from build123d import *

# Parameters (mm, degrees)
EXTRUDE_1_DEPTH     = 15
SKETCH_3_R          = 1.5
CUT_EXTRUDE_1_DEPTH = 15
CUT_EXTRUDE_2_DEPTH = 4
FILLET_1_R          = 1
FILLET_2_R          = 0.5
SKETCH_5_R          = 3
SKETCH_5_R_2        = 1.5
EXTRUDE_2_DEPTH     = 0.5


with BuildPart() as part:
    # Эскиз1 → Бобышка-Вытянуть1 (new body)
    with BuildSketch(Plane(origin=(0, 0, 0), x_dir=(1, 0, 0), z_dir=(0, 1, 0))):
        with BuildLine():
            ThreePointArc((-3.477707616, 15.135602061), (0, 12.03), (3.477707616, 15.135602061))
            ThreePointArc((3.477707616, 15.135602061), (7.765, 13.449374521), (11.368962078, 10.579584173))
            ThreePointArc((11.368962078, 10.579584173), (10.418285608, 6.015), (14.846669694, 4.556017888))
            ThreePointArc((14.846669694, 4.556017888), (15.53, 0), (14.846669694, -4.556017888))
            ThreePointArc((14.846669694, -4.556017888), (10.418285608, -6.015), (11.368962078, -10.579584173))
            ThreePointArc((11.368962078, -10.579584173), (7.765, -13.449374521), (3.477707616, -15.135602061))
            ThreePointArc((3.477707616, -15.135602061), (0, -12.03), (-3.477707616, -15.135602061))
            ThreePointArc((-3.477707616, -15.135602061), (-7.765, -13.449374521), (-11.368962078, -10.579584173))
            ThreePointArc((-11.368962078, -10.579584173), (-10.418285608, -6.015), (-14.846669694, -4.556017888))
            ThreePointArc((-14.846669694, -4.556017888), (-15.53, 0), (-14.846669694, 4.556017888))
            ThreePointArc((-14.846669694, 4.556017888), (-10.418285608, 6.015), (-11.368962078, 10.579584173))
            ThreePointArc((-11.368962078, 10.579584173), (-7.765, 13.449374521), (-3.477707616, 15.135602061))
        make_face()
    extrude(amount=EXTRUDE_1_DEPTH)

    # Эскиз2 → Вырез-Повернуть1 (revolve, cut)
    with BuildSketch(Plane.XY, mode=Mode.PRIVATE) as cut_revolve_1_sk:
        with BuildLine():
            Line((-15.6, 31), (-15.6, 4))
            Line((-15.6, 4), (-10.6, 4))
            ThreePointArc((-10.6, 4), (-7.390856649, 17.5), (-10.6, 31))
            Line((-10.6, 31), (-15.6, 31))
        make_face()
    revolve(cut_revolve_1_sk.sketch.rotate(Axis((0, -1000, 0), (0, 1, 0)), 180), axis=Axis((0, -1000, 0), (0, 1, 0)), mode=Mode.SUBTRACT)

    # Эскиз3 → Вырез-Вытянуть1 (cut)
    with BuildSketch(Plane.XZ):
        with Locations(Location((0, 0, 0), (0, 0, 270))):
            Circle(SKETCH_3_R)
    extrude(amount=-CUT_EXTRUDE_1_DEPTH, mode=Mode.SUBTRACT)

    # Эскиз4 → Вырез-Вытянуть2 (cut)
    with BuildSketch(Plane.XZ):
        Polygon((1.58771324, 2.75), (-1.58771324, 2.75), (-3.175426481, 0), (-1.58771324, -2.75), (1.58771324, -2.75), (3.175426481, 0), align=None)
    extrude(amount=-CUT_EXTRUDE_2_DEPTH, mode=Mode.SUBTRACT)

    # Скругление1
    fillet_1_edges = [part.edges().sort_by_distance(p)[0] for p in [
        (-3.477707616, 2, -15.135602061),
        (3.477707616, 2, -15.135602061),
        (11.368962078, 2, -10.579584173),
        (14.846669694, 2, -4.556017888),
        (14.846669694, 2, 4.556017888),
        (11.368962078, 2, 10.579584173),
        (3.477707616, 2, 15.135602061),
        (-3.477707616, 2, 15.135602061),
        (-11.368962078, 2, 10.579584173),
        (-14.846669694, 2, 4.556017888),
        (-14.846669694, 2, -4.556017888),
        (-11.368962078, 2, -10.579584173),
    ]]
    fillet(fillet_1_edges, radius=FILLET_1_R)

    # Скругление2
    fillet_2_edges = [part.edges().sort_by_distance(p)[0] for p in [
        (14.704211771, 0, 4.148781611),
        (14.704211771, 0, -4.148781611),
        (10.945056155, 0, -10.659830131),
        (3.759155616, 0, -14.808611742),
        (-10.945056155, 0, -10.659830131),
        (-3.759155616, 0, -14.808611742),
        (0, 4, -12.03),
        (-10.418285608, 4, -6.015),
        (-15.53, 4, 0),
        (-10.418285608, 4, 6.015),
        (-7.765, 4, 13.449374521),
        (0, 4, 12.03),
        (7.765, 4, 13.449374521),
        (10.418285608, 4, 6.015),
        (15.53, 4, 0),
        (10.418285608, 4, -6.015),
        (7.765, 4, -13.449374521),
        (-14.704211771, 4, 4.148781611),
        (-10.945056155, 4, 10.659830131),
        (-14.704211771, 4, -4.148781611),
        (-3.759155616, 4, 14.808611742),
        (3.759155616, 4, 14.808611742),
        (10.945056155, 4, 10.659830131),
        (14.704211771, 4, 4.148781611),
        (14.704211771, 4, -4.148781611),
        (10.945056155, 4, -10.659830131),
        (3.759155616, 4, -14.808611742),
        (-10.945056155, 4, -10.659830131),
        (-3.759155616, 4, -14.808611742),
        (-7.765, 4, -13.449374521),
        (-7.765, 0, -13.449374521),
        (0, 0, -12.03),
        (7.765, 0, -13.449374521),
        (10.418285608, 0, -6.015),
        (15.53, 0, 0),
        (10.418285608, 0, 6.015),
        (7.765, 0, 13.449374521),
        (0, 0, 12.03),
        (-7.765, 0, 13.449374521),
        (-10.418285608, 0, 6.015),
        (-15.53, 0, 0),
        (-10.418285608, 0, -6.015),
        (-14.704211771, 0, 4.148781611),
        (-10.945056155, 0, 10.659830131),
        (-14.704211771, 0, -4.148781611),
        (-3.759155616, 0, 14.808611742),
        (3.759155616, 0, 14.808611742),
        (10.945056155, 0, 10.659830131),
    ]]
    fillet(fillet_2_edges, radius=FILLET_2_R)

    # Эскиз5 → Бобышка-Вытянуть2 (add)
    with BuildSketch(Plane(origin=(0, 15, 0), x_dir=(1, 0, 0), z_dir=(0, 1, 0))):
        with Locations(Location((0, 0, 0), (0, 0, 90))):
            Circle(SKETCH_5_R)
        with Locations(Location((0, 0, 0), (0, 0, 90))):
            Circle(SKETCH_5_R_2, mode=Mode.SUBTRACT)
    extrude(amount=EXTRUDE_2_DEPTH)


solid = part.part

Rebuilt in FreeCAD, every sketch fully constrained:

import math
import FreeCAD as App
import Part
import Sketcher

V = App.Vector
Q = App.Units.Quantity


def edges_at(feature, points):
    """Names of the edges that pass closest to the given points."""
    edges = feature.Shape.Edges
    near = lambda p: min(range(len(edges)), key=lambda i: edges[i].distToShape(Part.Vertex(*p))[0])
    return sorted({f"Edge{near(p) + 1}" for p in points})

doc = App.newDocument("Part")
body = doc.addObject("PartDesign::Body", "Body")

# Sketch on XZ plane
sketch1 = doc.addObject("Sketcher::SketchObject", "Sketch")
body.addObject(sketch1)
sketch1.AttachmentSupport = (doc.XZ_Plane, [""])
sketch1.MapMode = "FlatFace"
sketch1.addGeometry([
    Part.ArcOfCircle(Part.Circle(V(0, -15.5, 0), V(0, 0, 1), 3.5), math.radians(6), math.radians(174)),  # 0
    Part.ArcOfCircle(Part.Circle(V(0, 0, 0), V(0, 0, 1), 15.5), math.radians(-137), math.radians(-103)),  # 1
    Part.ArcOfCircle(Part.Circle(V(-13.4, -7.8, 0), V(0, 0, 1), 3.5), math.radians(-54), math.radians(114)),  # 2
    Part.ArcOfCircle(Part.Circle(V(0, 0, 0), V(0, 0, 1), 15.5), math.radians(163), math.radians(197)),  # 3
    Part.ArcOfCircle(Part.Circle(V(-13.4, 7.8, 0), V(0, 0, 1), 3.5), math.radians(-114), math.radians(54)),  # 4
    Part.ArcOfCircle(Part.Circle(V(0, 0, 0), V(0, 0, 1), 15.5), math.radians(103), math.radians(137)),  # 5
    Part.ArcOfCircle(Part.Circle(V(0, 15.5, 0), V(0, 0, 1), 3.5), math.radians(-174), math.radians(-6)),  # 6
    Part.ArcOfCircle(Part.Circle(V(0, 0, 0), V(0, 0, 1), 15.5), math.radians(43), math.radians(77)),  # 7
    Part.ArcOfCircle(Part.Circle(V(13.4, 7.8, 0), V(0, 0, 1), 3.5), math.radians(126), math.radians(294)),  # 8
    Part.ArcOfCircle(Part.Circle(V(0, 0, 0), V(0, 0, 1), 15.5), math.radians(-17), math.radians(17)),  # 9
    Part.ArcOfCircle(Part.Circle(V(13.4, -7.8, 0), V(0, 0, 1), 3.5), math.radians(66), math.radians(234)),  # 10
    Part.ArcOfCircle(Part.Circle(V(0, 0, 0), V(0, 0, 1), 15.5), math.radians(-77), math.radians(-43)),  # 11
], False)
sketch1.addConstraint([
    Sketcher.Constraint("Coincident", 0, 2, 1, 2),
    Sketcher.Constraint("Coincident", 1, 1, 2, 1),
    Sketcher.Constraint("Coincident", 2, 2, 3, 2),
    Sketcher.Constraint("Coincident", 3, 1, 4, 1),
    Sketcher.Constraint("Coincident", 4, 2, 5, 2),
    Sketcher.Constraint("Coincident", 5, 1, 6, 1),
    Sketcher.Constraint("Coincident", 6, 2, 7, 2),
    Sketcher.Constraint("Coincident", 7, 1, 8, 1),
    Sketcher.Constraint("Coincident", 8, 2, 9, 2),
    Sketcher.Constraint("Coincident", 9, 1, 10, 1),
    Sketcher.Constraint("Coincident", 10, 2, 11, 2),
    Sketcher.Constraint("Coincident", 11, 1, 0, 1),
    Sketcher.Constraint("Coincident", 1, 3, -1, 1),
    Sketcher.Constraint("Coincident", 3, 3, -1, 1),
    Sketcher.Constraint("Coincident", 5, 3, -1, 1),
    Sketcher.Constraint("Coincident", 7, 3, -1, 1),
    Sketcher.Constraint("Coincident", 9, 3, -1, 1),
    Sketcher.Constraint("Coincident", 11, 3, -1, 1),
    Sketcher.Constraint("Equal", 0, 2),
    Sketcher.Constraint("Equal", 1, 3),
    Sketcher.Constraint("Equal", 2, 4),
    Sketcher.Constraint("Equal", 3, 5),
    Sketcher.Constraint("Equal", 4, 6),
    Sketcher.Constraint("Equal", 5, 7),
    Sketcher.Constraint("Equal", 6, 8),
    Sketcher.Constraint("Equal", 7, 9),
    Sketcher.Constraint("Equal", 8, 10),
    Sketcher.Constraint("Equal", 9, 11),
    Sketcher.Constraint("Symmetric", 0, 3, 6, 3, -1, 1),
    Sketcher.Constraint("Symmetric", 2, 3, 8, 3, -1, 1),
    Sketcher.Constraint("Symmetric", 4, 3, 10, 3, -1, 1),
    Sketcher.Constraint("Symmetric", 4, 3, 8, 3, -2),
    Sketcher.Constraint("PointOnObject", 0, 3, -2),
    Sketcher.Constraint("Radius", 0, Q("3.5 mm")),
    Sketcher.Constraint("Radius", 1, Q("15.53 mm")),
    Sketcher.Constraint("DistanceY", 0, 3, -1, 1, Q("15.53 mm")),
    Sketcher.Constraint("DistanceY", 2, 3, 4, 3, Q("15.53 mm")),
    Sketcher.Constraint("DistanceX", 2, 2, -1, 1, Q("14.84667 mm")),
])
pad1 = doc.addObject("PartDesign::Pad", "Pad")
body.addObject(pad1)
pad1.Profile = sketch1
pad1.Length = 15
pad1.Reversed = True

# Sketch on XY plane
sketch2 = doc.addObject("Sketcher::SketchObject", "Sketch001")
body.addObject(sketch2)
sketch2.AttachmentSupport = (doc.XY_Plane, [""])
sketch2.MapMode = "FlatFace"
sketch2.addGeometry([
    Part.LineSegment(V(-16, 31, 0), V(-16, 4, 0)),
    Part.LineSegment(V(-16, 4, 0), V(-11, 4, 0)),
    Part.ArcOfCircle(Part.Circle(V(-37, 18, 0), V(0, 0, 1), 30), math.radians(-27), math.radians(27)),
    Part.LineSegment(V(-11, 31, 0), V(-16, 31, 0)),
], False)
sketch2.addConstraint([
    Sketcher.Constraint("Coincident", 0, 2, 1, 1),
    Sketcher.Constraint("Coincident", 1, 2, 2, 1),
    Sketcher.Constraint("Coincident", 2, 2, 3, 1),
    Sketcher.Constraint("Coincident", 3, 2, 0, 1),
    Sketcher.Constraint("Vertical", 0),
    Sketcher.Constraint("Horizontal", 1),
    Sketcher.Constraint("Horizontal", 3),
    Sketcher.Constraint("Vertical", 1, 2, 2, 2),
    Sketcher.Constraint("Radius", 2, Q("30 mm")),
    Sketcher.Constraint("DistanceX", 1, 1, 1, 2, Q("5 mm")),
    Sketcher.Constraint("DistanceY", 0, 2, 0, 1, Q("27 mm")),
    Sketcher.Constraint("DistanceY", -1, 1, 0, 2, Q("4 mm")),
    Sketcher.Constraint("DistanceX", 0, 2, -1, 1, Q("15.6 mm")),
])
groove = doc.addObject("PartDesign::Groove", "Groove")
body.addObject(groove)
groove.Profile = sketch2
groove.ReferenceAxis = (sketch2, ["V_Axis"])
groove.Angle = 360

# Sketch on XZ plane
sketch3 = doc.addObject("Sketcher::SketchObject", "Sketch002")
body.addObject(sketch3)
sketch3.AttachmentSupport = (doc.XZ_Plane, [""])
sketch3.MapMode = "FlatFace"
sketch3.addGeometry(Part.Circle(V(0, 0, 0), V(0, 0, 1), 1.5), False)
sketch3.addConstraint([
    Sketcher.Constraint("Coincident", 0, 3, -1, 1),
    Sketcher.Constraint("Diameter", 0, Q("3 mm")),
])
pocket1 = doc.addObject("PartDesign::Pocket", "Pocket")
body.addObject(pocket1)
pocket1.Profile = sketch3
pocket1.Length = 15

# Sketch on XZ plane
sketch4 = doc.addObject("Sketcher::SketchObject", "Sketch003")
body.addObject(sketch4)
sketch4.AttachmentSupport = (doc.XZ_Plane, [""])
sketch4.MapMode = "FlatFace"
sketch4.addGeometry([
    Part.LineSegment(V(1.6, 2.8, 0), V(-1.6, 2.8, 0)),  # 0
    Part.LineSegment(V(-1.6, 2.8, 0), V(-3.2, 0, 0)),  # 1
    Part.LineSegment(V(-3.2, 0, 0), V(-1.6, -2.8, 0)),  # 2
    Part.LineSegment(V(-1.6, -2.8, 0), V(1.6, -2.8, 0)),  # 3
    Part.LineSegment(V(1.6, -2.8, 0), V(3.2, 0, 0)),  # 4
    Part.LineSegment(V(3.2, 0, 0), V(1.6, 2.8, 0)),  # 5
], False)
sketch4.addConstraint([
    Sketcher.Constraint("Coincident", 0, 2, 1, 1),
    Sketcher.Constraint("Coincident", 1, 2, 2, 1),
    Sketcher.Constraint("Coincident", 2, 2, 3, 1),
    Sketcher.Constraint("Coincident", 3, 2, 4, 1),
    Sketcher.Constraint("Coincident", 4, 2, 5, 1),
    Sketcher.Constraint("Coincident", 5, 2, 0, 1),
    Sketcher.Constraint("Horizontal", 0),
    Sketcher.Constraint("Horizontal", 3),
    Sketcher.Constraint("Symmetric", 0, 2, 3, 2, -1, 1),
    Sketcher.Constraint("Symmetric", 1, 2, 4, 2, -1, 1),
    Sketcher.Constraint("PointOnObject", 1, 2, -1),
    Sketcher.Constraint("Parallel", 2, 5),
    Sketcher.Constraint("Vertical", 0, 2, 2, 2),
    Sketcher.Constraint("Angle", 1, Q("-120 deg")),
    Sketcher.Constraint("DistanceY", 2, 2, 0, 2, Q("5.5 mm")),
    Sketcher.Constraint("DistanceX", 0, 2, 0, 1, Q("3.175426 mm")),
])
pocket2 = doc.addObject("PartDesign::Pocket", "Pocket001")
body.addObject(pocket2)
pocket2.Profile = sketch4
pocket2.Length = 4
doc.recompute()

fillet = doc.addObject("PartDesign::Fillet", "Fillet")
body.addObject(fillet)
fillet.Base = (pocket2, edges_at(pocket2, [
    (-3.478, 2, -15.136),
    (3.478, 2, -15.136),
    (11.369, 2, -10.58),
    (14.847, 2, -4.556),
    (14.847, 2, 4.556),
    (11.369, 2, 10.58),
    (3.478, 2, 15.136),
    (-3.478, 2, 15.136),
    (-11.369, 2, 10.58),
    (-14.847, 2, 4.556),
    (-14.847, 2, -4.556),
    (-11.369, 2, -10.58),
]))
fillet.Radius = 1
doc.recompute()

fillet2 = doc.addObject("PartDesign::Fillet", "Fillet001")
body.addObject(fillet2)
fillet2.Base = (fillet, edges_at(fillet, [
    (14.704, 0, 4.149),
    (14.704, 0, -4.149),
    (10.945, 0, -10.66),
    (3.759, 0, -14.809),
    (-10.945, 0, -10.66),
    (-3.759, 0, -14.809),
    (0, 4, -12.03),
    (-10.418, 4, -6.015),
    (-15.53, 4, 0),
    (-10.418, 4, 6.015),
    (-7.765, 4, 13.449),
    (0, 4, 12.03),
    (7.765, 4, 13.449),
    (10.418, 4, 6.015),
    (15.53, 4, 0),
    (10.418, 4, -6.015),
    (7.765, 4, -13.449),
    (-14.704, 4, 4.149),
    (-10.945, 4, 10.66),
    (-14.704, 4, -4.149),
    (-3.759, 4, 14.809),
    (3.759, 4, 14.809),
    (10.945, 4, 10.66),
    (14.704, 4, 4.149),
    (14.704, 4, -4.149),
    (10.945, 4, -10.66),
    (3.759, 4, -14.809),
    (-10.945, 4, -10.66),
    (-3.759, 4, -14.809),
    (-7.765, 4, -13.449),
    (-7.765, 0, -13.449),
    (0, 0, -12.03),
    (7.765, 0, -13.449),
    (10.418, 0, -6.015),
    (15.53, 0, 0),
    (10.418, 0, 6.015),
    (7.765, 0, 13.449),
    (0, 0, 12.03),
    (-7.765, 0, 13.449),
    (-10.418, 0, 6.015),
    (-15.53, 0, 0),
    (-10.418, 0, -6.015),
    (-14.704, 0, 4.149),
    (-10.945, 0, 10.66),
    (-14.704, 0, -4.149),
    (-3.759, 0, 14.809),
    (3.759, 0, 14.809),
    (10.945, 0, 10.66),
]))
fillet2.Radius = 0.5

# Sketch on XZ plane
sketch5 = doc.addObject("Sketcher::SketchObject", "Sketch004")
body.addObject(sketch5)
sketch5.AttachmentSupport = (doc.XZ_Plane, [""])
sketch5.MapMode = "FlatFace"
sketch5.AttachmentOffset = App.Placement(V(0, 0, -15), App.Rotation())
sketch5.addGeometry([
    Part.Circle(V(0, 0, 0), V(0, 0, 1), 3),
    Part.Circle(V(0, 0, 0), V(0, 0, 1), 1.5),
], False)
sketch5.addConstraint([
    Sketcher.Constraint("Coincident", 0, 3, -1, 1),
    Sketcher.Constraint("Coincident", 1, 3, -1, 1),
    Sketcher.Constraint("Diameter", 0, Q("6 mm")),
    Sketcher.Constraint("Diameter", 1, Q("3 mm")),
])
pad2 = doc.addObject("PartDesign::Pad", "Pad001")
body.addObject(pad2)
pad2.Profile = sketch5
pad2.Length = 0.5
pad2.Reversed = True

doc.recompute()
